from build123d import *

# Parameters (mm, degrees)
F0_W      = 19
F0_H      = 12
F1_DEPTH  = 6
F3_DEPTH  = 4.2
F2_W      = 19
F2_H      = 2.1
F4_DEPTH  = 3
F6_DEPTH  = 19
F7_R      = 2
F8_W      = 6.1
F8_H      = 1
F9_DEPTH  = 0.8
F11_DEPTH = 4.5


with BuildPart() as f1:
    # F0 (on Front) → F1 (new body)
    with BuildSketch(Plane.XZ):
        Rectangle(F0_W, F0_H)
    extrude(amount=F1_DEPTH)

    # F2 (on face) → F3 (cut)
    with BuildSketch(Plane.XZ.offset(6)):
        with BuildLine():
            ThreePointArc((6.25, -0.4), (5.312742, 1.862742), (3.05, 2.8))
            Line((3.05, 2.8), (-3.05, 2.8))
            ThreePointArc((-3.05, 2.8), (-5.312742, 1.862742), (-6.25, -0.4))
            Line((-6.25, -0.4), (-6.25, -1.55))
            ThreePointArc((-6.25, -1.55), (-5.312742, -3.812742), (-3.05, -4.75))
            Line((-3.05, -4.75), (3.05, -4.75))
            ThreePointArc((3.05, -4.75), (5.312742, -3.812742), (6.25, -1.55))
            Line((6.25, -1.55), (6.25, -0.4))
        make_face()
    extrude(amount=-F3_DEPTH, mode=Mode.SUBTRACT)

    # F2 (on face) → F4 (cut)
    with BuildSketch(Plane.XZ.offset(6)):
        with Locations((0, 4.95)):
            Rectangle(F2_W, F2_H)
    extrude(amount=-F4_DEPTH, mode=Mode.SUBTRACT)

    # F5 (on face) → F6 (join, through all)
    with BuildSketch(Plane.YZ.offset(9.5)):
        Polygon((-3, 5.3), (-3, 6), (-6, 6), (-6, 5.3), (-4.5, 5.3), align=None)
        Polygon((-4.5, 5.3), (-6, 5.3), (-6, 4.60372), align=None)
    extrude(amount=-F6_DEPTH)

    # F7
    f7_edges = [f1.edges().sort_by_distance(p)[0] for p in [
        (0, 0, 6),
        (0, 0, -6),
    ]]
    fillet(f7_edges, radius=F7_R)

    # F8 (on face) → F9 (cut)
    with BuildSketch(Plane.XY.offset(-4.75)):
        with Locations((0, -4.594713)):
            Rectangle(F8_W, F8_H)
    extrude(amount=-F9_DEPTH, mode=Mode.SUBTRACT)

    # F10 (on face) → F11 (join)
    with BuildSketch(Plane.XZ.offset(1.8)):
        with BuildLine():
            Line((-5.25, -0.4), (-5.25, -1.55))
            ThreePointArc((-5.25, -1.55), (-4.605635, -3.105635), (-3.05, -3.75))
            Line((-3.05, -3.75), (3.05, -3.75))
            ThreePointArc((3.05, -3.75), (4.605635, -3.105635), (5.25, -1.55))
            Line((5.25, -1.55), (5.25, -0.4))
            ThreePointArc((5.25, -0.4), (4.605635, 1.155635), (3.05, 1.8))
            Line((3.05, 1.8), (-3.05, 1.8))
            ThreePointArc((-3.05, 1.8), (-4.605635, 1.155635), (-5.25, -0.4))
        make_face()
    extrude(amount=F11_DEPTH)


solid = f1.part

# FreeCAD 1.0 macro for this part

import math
import FreeCAD as App
import Part
import Sketcher
Q = App.Units.Quantity


def edges_at(feature, points):
    """Names of the edges that pass closest to the given points."""
    edges = feature.Shape.Edges
    near = lambda p: min(range(len(edges)), key=lambda i: edges[i].distToShape(Part.Vertex(*p))[0])
    return sorted({f"Edge{near(p) + 1}" for p in points})

doc = App.newDocument("Part")
params = doc.addObject("Spreadsheet::Sheet", "Params")
for row, (alias, value) in enumerate([
    ("sketch1_width", "19 mm"),
    ("sketch1_height", "12 mm"),
    ("pad1_length", "6 mm"),
    ("sketch2_radius", "3.199999 mm"),
    ("sketch2_width", "6.1 mm"),
    ("sketch2_height", "1.15 mm"),
    ("pocket1_length", "4.2 mm"),
    ("sketch3_width", "19 mm"),
    ("sketch3_height", "2.1 mm"),
    ("pocket2_length", "3 mm"),
    ("sketch4_width", "3 mm"),
    ("sketch4_width2", "1.5 mm"),
    ("sketch4_height", "0.7 mm"),
    ("pad2_length", "19 mm"),
    ("fillet_radius", "2 mm"),
    ("sketch5_height", "1 mm"),
    ("sketch5_width", "6.1 mm"),
    ("pocket3_length", "0.8 mm"),
    ("sketch6_radius", "2.2 mm"),
    ("sketch6_width", "6.1 mm"),
    ("sketch6_height", "1.15 mm"),
    ("pad3_length", "4.5 mm"),
], start=1):
    params.set(f"A{row}", alias)
    params.set(f"B{row}", "=" + value)
    params.setAlias(f"B{row}", alias)

body = doc.addObject("PartDesign::Body", "Body")

# Sketch on XZ plane
sketch1 = doc.addObject("Sketcher::SketchObject", "Sketch")
body.addObject(sketch1)
sketch1.AttachmentSupport = (doc.XZ_Plane, [""])
sketch1.MapMode = "FlatFace"
sketch1.addGeometry([
    Part.LineSegment(App.Vector(-10, 6, 0), App.Vector(-10, -6, 0)),
    Part.LineSegment(App.Vector(-10, -6, 0), App.Vector(10, -6, 0)),
    Part.LineSegment(App.Vector(10, -6, 0), App.Vector(10, 6, 0)),
    Part.LineSegment(App.Vector(10, 6, 0), App.Vector(-10, 6, 0)),
], False)
sketch1.addConstraint([
    Sketcher.Constraint("Coincident", 0, 2, 1, 1),
    Sketcher.Constraint("Coincident", 1, 2, 2, 1),
    Sketcher.Constraint("Coincident", 2, 2, 3, 1),
    Sketcher.Constraint("Coincident", 3, 2, 0, 1),
    Sketcher.Constraint("Vertical", 0),
    Sketcher.Constraint("Horizontal", 1),
    Sketcher.Constraint("Vertical", 2),
    Sketcher.Constraint("Horizontal", 3),
    Sketcher.Constraint("Symmetric", 0, 2, 2, 2, -1, 1),
    Sketcher.Constraint("DistanceX", 1, 1, 1, 2, Q("19 mm")),
    Sketcher.Constraint("DistanceY", 0, 2, 0, 1, Q("12 mm")),
])
sketch1.setExpression("Constraints[9]", "Params.sketch1_width")
sketch1.setExpression("Constraints[10]", "Params.sketch1_height")
pad1 = doc.addObject("PartDesign::Pad", "Pad")
body.addObject(pad1)
pad1.Profile = sketch1
pad1.setExpression("Length", "Params.pad1_length")

# Sketch on XZ plane
sketch2 = doc.addObject("Sketcher::SketchObject", "Sketch001")
body.addObject(sketch2)
sketch2.AttachmentSupport = (doc.XZ_Plane, [""])
sketch2.MapMode = "FlatFace"
sketch2.AttachmentOffset = App.Placement(App.Vector(0, 0, 6), App.Rotation())
sketch2.addGeometry([
    Part.ArcOfCircle(Part.Circle(App.Vector(3.1, -0.4, 0), App.Vector(0, 0, 1), 3.2), math.radians(0), math.radians(90)),  # 0
    Part.LineSegment(App.Vector(3, 2.8, 0), App.Vector(-3, 2.8, 0)),  # 1
    Part.ArcOfCircle(Part.Circle(App.Vector(-3.1, -0.4, 0), App.Vector(0, 0, 1), 3.2), math.radians(90), math.radians(180)),  # 2
    Part.LineSegment(App.Vector(-6.2, -0.4, 0), App.Vector(-6.2, -1.6, 0)),  # 3
    Part.ArcOfCircle(Part.Circle(App.Vector(-3.1, -1.6, 0), App.Vector(0, 0, 1), 3.2), math.radians(180), math.radians(270)),  # 4
    Part.LineSegment(App.Vector(-3, -4.8, 0), App.Vector(3, -4.8, 0)),  # 5
    Part.ArcOfCircle(Part.Circle(App.Vector(3.1, -1.6, 0), App.Vector(0, 0, 1), 3.2), math.radians(-90), math.radians(0)),  # 6
    Part.LineSegment(App.Vector(6.2, -1.6, 0), App.Vector(6.2, -0.4, 0)),  # 7
], False)
sketch2.addConstraint([
    Sketcher.Constraint("Tangent", 0, 2, 1, 1),
    Sketcher.Constraint("Tangent", 1, 2, 2, 1),
    Sketcher.Constraint("Tangent", 2, 2, 3, 1),
    Sketcher.Constraint("Tangent", 3, 2, 4, 1),
    Sketcher.Constraint("Tangent", 4, 2, 5, 1),
    Sketcher.Constraint("Tangent", 5, 2, 6, 1),
    Sketcher.Constraint("Tangent", 6, 2, 7, 1),
    Sketcher.Constraint("Tangent", 7, 2, 0, 1),
    Sketcher.Constraint("Horizontal", 1),
    Sketcher.Constraint("Vertical", 3),
    Sketcher.Constraint("Horizontal", 5),
    Sketcher.Constraint("Vertical", 7),
    Sketcher.Constraint("Equal", 0, 2),
    Sketcher.Constraint("Equal", 2, 4),
    Sketcher.Constraint("Equal", 4, 6),
    Sketcher.Constraint("Radius", 0, Q("3.199999 mm")),
    Sketcher.Constraint("DistanceX", 1, 2, 1, 1, Q("6.1 mm")),
    Sketcher.Constraint("DistanceY", 3, 2, 3, 1, Q("1.15 mm")),
    Sketcher.Constraint("DistanceY", 0, 3, -1, 1, Q("0.399999 mm")),
    Sketcher.Constraint("DistanceX", -1, 1, 0, 3, Q("3.050001 mm")),
])
sketch2.setExpression("Constraints[15]", "Params.sketch2_radius")
sketch2.setExpression("Constraints[16]", "Params.sketch2_width")
sketch2.setExpression("Constraints[17]", "Params.sketch2_height")
pocket1 = doc.addObject("PartDesign::Pocket", "Pocket")
body.addObject(pocket1)
pocket1.Profile = sketch2
pocket1.setExpression("Length", "Params.pocket1_length")

# Sketch on XZ plane
sketch3 = doc.addObject("Sketcher::SketchObject", "Sketch002")
body.addObject(sketch3)
sketch3.AttachmentSupport = (doc.XZ_Plane, [""])
sketch3.MapMode = "FlatFace"
sketch3.AttachmentOffset = App.Placement(App.Vector(0, 0, 6), App.Rotation())
sketch3.addGeometry([
    Part.LineSegment(App.Vector(-9.5, 6, 0), App.Vector(-9.5, 3.9, 0)),
    Part.LineSegment(App.Vector(-9.5, 3.9, 0), App.Vector(9.5, 3.9, 0)),
    Part.LineSegment(App.Vector(9.5, 3.9, 0), App.Vector(9.5, 6, 0)),
    Part.LineSegment(App.Vector(9.5, 6, 0), App.Vector(-9.5, 6, 0)),
], False)
sketch3.addConstraint([
    Sketcher.Constraint("Coincident", 0, 2, 1, 1),
    Sketcher.Constraint("Coincident", 1, 2, 2, 1),
    Sketcher.Constraint("Coincident", 2, 2, 3, 1),
    Sketcher.Constraint("Coincident", 3, 2, 0, 1),
    Sketcher.Constraint("Vertical", 0),
    Sketcher.Constraint("Horizontal", 1),
    Sketcher.Constraint("Vertical", 2),
    Sketcher.Constraint("Horizontal", 3),
    Sketcher.Constraint("DistanceX", 1, 1, 1, 2, Q("19 mm")),
    Sketcher.Constraint("DistanceY", 0, 2, 0, 1, Q("2.1 mm")),
    Sketcher.Constraint("DistanceY", -1, 1, 2, 2, Q("6 mm")),
    Sketcher.Constraint("DistanceX", 0, 2, -1, 1, Q("9.5 mm")),
])
sketch3.setExpression("Constraints[8]", "Params.sketch3_width")
sketch3.setExpression("Constraints[9]", "Params.sketch3_height")
pocket2 = doc.addObject("PartDesign::Pocket", "Pocket001")
body.addObject(pocket2)
pocket2.Profile = sketch3
pocket2.setExpression("Length", "Params.pocket2_length")

# Sketch on YZ plane
sketch4 = doc.addObject("Sketcher::SketchObject", "Sketch003")
body.addObject(sketch4)
sketch4.AttachmentSupport = (doc.YZ_Plane, [""])
sketch4.MapMode = "FlatFace"
sketch4.AttachmentOffset = App.Placement(App.Vector(0, 0, 9.5), App.Rotation())
sketch4.addGeometry([
    Part.LineSegment(App.Vector(-3, 5.3, 0), App.Vector(-3, 6, 0)),  # 0
    Part.LineSegment(App.Vector(-3, 6, 0), App.Vector(-6, 6, 0)),  # 1
    Part.LineSegment(App.Vector(-6, 6, 0), App.Vector(-6, 4.6, 0)),  # 2
    Part.LineSegment(App.Vector(-6, 4.6, 0), App.Vector(-4.5, 5.3, 0)),  # 3
    Part.LineSegment(App.Vector(-4.5, 5.3, 0), App.Vector(-3, 5.3, 0)),  # 4
], False)
sketch4.addConstraint([
    Sketcher.Constraint("Coincident", 0, 2, 1, 1),
    Sketcher.Constraint("Coincident", 1, 2, 2, 1),
    Sketcher.Constraint("Coincident", 2, 2, 3, 1),
    Sketcher.Constraint("Coincident", 3, 2, 4, 1),
    Sketcher.Constraint("Coincident", 4, 2, 0, 1),
    Sketcher.Constraint("Vertical", 0),
    Sketcher.Constraint("Horizontal", 1),
    Sketcher.Constraint("Vertical", 2),
    Sketcher.Constraint("Horizontal", 4),
    Sketcher.Constraint("DistanceX", 1, 2, 1, 1, Q("3 mm")),
    Sketcher.Constraint("DistanceX", 4, 1, 4, 2, Q("1.5 mm")),
    Sketcher.Constraint("DistanceY", 0, 1, 0, 2, Q("0.7 mm")),
    Sketcher.Constraint("DistanceX", 0, 2, -1, 1, Q("3 mm")),
    Sketcher.Constraint("DistanceY", -1, 1, 0, 2, Q("6 mm")),
    Sketcher.Constraint("DistanceY", 2, 2, 2, 1, Q("1.39628 mm")),
])
sketch4.setExpression("Constraints[9]", "Params.sketch4_width")
sketch4.setExpression("Constraints[10]", "Params.sketch4_width2")
sketch4.setExpression("Constraints[11]", "Params.sketch4_height")
pad2 = doc.addObject("PartDesign::Pad", "Pad001")
body.addObject(pad2)
pad2.Profile = sketch4
pad2.setExpression("Length", "Params.pad2_length")
pad2.Reversed = True
doc.recompute()

fillet = doc.addObject("PartDesign::Fillet", "Fillet")
body.addObject(fillet)
fillet.Base = (pad2, edges_at(pad2, [(0, 0, 6), (0, 0, -6)]))
fillet.setExpression("Radius", "Params.fillet_radius")

# Sketch on XY plane
sketch5 = doc.addObject("Sketcher::SketchObject", "Sketch004")
body.addObject(sketch5)
sketch5.AttachmentSupport = (doc.XY_Plane, [""])
sketch5.MapMode = "FlatFace"
sketch5.AttachmentOffset = App.Placement(App.Vector(0, 0, -4.75), App.Rotation())
sketch5.addGeometry([
    Part.LineSegment(App.Vector(-3, -4.1, 0), App.Vector(-3, -5.1, 0)),
    Part.LineSegment(App.Vector(-3, -5.1, 0), App.Vector(3, -5.1, 0)),
    Part.LineSegment(App.Vector(3, -5.1, 0), App.Vector(3, -4.1, 0)),
    Part.LineSegment(App.Vector(3, -4.1, 0), App.Vector(-3, -4.1, 0)),
], False)
sketch5.addConstraint([
    Sketcher.Constraint("Coincident", 0, 2, 1, 1),
    Sketcher.Constraint("Coincident", 1, 2, 2, 1),
    Sketcher.Constraint("Coincident", 2, 2, 3, 1),
    Sketcher.Constraint("Coincident", 3, 2, 0, 1),
    Sketcher.Constraint("Vertical", 0),
    Sketcher.Constraint("Horizontal", 1),
    Sketcher.Constraint("Vertical", 2),
    Sketcher.Constraint("Horizontal", 3),
    Sketcher.Constraint("DistanceY", 0, 2, 0, 1, Q("1 mm")),
    Sketcher.Constraint("DistanceX", 1, 1, 1, 2, Q("6.1 mm")),
    Sketcher.Constraint("DistanceX", 0, 2, -1, 1, Q("3.05 mm")),
    Sketcher.Constraint("DistanceY", 0, 2, -1, 1, Q("5.094713 mm")),
])
sketch5.setExpression("Constraints[8]", "Params.sketch5_height")
sketch5.setExpression("Constraints[9]", "Params.sketch5_width")
pocket3 = doc.addObject("PartDesign::Pocket", "Pocket002")
body.addObject(pocket3)
pocket3.Profile = sketch5
pocket3.setExpression("Length", "Params.pocket3_length")

# Sketch on XZ plane
sketch6 = doc.addObject("Sketcher::SketchObject", "Sketch005")
body.addObject(sketch6)
sketch6.AttachmentSupport = (doc.XZ_Plane, [""])
sketch6.MapMode = "FlatFace"
sketch6.AttachmentOffset = App.Placement(App.Vector(0, 0, 1.8), App.Rotation())
sketch6.addGeometry([
    Part.LineSegment(App.Vector(-5.2, -0.4, 0), App.Vector(-5.2, -1.6, 0)),  # 0
    Part.ArcOfCircle(Part.Circle(App.Vector(-3.1, -1.6, 0), App.Vector(0, 0, 1), 2.2), math.radians(180), math.radians(270)),  # 1
    Part.LineSegment(App.Vector(-3, -3.8, 0), App.Vector(3, -3.8, 0)),  # 2
    Part.ArcOfCircle(Part.Circle(App.Vector(3.1, -1.6, 0), App.Vector(0, 0, 1), 2.2), math.radians(-90), math.radians(0)),  # 3
    Part.LineSegment(App.Vector(5.2, -1.6, 0), App.Vector(5.2, -0.4, 0)),  # 4
    Part.ArcOfCircle(Part.Circle(App.Vector(3.1, -0.4, 0), App.Vector(0, 0, 1), 2.2), math.radians(0), math.radians(90)),  # 5
    Part.LineSegment(App.Vector(3, 1.8, 0), App.Vector(-3, 1.8, 0)),  # 6
    Part.ArcOfCircle(Part.Circle(App.Vector(-3.1, -0.4, 0), App.Vector(0, 0, 1), 2.2), math.radians(90), math.radians(180)),  # 7
], False)
sketch6.addConstraint([
    Sketcher.Constraint("Tangent", 0, 2, 1, 1),
    Sketcher.Constraint("Tangent", 1, 2, 2, 1),
    Sketcher.Constraint("Tangent", 2, 2, 3, 1),
    Sketcher.Constraint("Tangent", 3, 2, 4, 1),
    Sketcher.Constraint("Tangent", 4, 2, 5, 1),
    Sketcher.Constraint("Tangent", 5, 2, 6, 1),
    Sketcher.Constraint("Tangent", 6, 2, 7, 1),
    Sketcher.Constraint("Tangent", 7, 2, 0, 1),
    Sketcher.Constraint("Vertical", 0),
    Sketcher.Constraint("Horizontal", 2),
    Sketcher.Constraint("Vertical", 4),
    Sketcher.Constraint("Horizontal", 6),
    Sketcher.Constraint("Equal", 1, 3),
    Sketcher.Constraint("Equal", 3, 5),
    Sketcher.Constraint("Equal", 5, 7),
    Sketcher.Constraint("Radius", 1, Q("2.2 mm")),
    Sketcher.Constraint("DistanceX", 2, 1, 2, 2, Q("6.1 mm")),
    Sketcher.Constraint("DistanceY", 0, 2, 0, 1, Q("1.15 mm")),
    Sketcher.Constraint("DistanceY", 5, 3, -1, 1, Q("0.4 mm")),
    Sketcher.Constraint("DistanceX", 1, 3, -1, 1, Q("3.05 mm")),
])
sketch6.setExpression("Constraints[15]", "Params.sketch6_radius")
sketch6.setExpression("Constraints[16]", "Params.sketch6_width")
sketch6.setExpression("Constraints[17]", "Params.sketch6_height")
pad3 = doc.addObject("PartDesign::Pad", "Pad002")
body.addObject(pad3)
pad3.Profile = sketch6
pad3.setExpression("Length", "Params.pad3_length")

doc.recompute()
